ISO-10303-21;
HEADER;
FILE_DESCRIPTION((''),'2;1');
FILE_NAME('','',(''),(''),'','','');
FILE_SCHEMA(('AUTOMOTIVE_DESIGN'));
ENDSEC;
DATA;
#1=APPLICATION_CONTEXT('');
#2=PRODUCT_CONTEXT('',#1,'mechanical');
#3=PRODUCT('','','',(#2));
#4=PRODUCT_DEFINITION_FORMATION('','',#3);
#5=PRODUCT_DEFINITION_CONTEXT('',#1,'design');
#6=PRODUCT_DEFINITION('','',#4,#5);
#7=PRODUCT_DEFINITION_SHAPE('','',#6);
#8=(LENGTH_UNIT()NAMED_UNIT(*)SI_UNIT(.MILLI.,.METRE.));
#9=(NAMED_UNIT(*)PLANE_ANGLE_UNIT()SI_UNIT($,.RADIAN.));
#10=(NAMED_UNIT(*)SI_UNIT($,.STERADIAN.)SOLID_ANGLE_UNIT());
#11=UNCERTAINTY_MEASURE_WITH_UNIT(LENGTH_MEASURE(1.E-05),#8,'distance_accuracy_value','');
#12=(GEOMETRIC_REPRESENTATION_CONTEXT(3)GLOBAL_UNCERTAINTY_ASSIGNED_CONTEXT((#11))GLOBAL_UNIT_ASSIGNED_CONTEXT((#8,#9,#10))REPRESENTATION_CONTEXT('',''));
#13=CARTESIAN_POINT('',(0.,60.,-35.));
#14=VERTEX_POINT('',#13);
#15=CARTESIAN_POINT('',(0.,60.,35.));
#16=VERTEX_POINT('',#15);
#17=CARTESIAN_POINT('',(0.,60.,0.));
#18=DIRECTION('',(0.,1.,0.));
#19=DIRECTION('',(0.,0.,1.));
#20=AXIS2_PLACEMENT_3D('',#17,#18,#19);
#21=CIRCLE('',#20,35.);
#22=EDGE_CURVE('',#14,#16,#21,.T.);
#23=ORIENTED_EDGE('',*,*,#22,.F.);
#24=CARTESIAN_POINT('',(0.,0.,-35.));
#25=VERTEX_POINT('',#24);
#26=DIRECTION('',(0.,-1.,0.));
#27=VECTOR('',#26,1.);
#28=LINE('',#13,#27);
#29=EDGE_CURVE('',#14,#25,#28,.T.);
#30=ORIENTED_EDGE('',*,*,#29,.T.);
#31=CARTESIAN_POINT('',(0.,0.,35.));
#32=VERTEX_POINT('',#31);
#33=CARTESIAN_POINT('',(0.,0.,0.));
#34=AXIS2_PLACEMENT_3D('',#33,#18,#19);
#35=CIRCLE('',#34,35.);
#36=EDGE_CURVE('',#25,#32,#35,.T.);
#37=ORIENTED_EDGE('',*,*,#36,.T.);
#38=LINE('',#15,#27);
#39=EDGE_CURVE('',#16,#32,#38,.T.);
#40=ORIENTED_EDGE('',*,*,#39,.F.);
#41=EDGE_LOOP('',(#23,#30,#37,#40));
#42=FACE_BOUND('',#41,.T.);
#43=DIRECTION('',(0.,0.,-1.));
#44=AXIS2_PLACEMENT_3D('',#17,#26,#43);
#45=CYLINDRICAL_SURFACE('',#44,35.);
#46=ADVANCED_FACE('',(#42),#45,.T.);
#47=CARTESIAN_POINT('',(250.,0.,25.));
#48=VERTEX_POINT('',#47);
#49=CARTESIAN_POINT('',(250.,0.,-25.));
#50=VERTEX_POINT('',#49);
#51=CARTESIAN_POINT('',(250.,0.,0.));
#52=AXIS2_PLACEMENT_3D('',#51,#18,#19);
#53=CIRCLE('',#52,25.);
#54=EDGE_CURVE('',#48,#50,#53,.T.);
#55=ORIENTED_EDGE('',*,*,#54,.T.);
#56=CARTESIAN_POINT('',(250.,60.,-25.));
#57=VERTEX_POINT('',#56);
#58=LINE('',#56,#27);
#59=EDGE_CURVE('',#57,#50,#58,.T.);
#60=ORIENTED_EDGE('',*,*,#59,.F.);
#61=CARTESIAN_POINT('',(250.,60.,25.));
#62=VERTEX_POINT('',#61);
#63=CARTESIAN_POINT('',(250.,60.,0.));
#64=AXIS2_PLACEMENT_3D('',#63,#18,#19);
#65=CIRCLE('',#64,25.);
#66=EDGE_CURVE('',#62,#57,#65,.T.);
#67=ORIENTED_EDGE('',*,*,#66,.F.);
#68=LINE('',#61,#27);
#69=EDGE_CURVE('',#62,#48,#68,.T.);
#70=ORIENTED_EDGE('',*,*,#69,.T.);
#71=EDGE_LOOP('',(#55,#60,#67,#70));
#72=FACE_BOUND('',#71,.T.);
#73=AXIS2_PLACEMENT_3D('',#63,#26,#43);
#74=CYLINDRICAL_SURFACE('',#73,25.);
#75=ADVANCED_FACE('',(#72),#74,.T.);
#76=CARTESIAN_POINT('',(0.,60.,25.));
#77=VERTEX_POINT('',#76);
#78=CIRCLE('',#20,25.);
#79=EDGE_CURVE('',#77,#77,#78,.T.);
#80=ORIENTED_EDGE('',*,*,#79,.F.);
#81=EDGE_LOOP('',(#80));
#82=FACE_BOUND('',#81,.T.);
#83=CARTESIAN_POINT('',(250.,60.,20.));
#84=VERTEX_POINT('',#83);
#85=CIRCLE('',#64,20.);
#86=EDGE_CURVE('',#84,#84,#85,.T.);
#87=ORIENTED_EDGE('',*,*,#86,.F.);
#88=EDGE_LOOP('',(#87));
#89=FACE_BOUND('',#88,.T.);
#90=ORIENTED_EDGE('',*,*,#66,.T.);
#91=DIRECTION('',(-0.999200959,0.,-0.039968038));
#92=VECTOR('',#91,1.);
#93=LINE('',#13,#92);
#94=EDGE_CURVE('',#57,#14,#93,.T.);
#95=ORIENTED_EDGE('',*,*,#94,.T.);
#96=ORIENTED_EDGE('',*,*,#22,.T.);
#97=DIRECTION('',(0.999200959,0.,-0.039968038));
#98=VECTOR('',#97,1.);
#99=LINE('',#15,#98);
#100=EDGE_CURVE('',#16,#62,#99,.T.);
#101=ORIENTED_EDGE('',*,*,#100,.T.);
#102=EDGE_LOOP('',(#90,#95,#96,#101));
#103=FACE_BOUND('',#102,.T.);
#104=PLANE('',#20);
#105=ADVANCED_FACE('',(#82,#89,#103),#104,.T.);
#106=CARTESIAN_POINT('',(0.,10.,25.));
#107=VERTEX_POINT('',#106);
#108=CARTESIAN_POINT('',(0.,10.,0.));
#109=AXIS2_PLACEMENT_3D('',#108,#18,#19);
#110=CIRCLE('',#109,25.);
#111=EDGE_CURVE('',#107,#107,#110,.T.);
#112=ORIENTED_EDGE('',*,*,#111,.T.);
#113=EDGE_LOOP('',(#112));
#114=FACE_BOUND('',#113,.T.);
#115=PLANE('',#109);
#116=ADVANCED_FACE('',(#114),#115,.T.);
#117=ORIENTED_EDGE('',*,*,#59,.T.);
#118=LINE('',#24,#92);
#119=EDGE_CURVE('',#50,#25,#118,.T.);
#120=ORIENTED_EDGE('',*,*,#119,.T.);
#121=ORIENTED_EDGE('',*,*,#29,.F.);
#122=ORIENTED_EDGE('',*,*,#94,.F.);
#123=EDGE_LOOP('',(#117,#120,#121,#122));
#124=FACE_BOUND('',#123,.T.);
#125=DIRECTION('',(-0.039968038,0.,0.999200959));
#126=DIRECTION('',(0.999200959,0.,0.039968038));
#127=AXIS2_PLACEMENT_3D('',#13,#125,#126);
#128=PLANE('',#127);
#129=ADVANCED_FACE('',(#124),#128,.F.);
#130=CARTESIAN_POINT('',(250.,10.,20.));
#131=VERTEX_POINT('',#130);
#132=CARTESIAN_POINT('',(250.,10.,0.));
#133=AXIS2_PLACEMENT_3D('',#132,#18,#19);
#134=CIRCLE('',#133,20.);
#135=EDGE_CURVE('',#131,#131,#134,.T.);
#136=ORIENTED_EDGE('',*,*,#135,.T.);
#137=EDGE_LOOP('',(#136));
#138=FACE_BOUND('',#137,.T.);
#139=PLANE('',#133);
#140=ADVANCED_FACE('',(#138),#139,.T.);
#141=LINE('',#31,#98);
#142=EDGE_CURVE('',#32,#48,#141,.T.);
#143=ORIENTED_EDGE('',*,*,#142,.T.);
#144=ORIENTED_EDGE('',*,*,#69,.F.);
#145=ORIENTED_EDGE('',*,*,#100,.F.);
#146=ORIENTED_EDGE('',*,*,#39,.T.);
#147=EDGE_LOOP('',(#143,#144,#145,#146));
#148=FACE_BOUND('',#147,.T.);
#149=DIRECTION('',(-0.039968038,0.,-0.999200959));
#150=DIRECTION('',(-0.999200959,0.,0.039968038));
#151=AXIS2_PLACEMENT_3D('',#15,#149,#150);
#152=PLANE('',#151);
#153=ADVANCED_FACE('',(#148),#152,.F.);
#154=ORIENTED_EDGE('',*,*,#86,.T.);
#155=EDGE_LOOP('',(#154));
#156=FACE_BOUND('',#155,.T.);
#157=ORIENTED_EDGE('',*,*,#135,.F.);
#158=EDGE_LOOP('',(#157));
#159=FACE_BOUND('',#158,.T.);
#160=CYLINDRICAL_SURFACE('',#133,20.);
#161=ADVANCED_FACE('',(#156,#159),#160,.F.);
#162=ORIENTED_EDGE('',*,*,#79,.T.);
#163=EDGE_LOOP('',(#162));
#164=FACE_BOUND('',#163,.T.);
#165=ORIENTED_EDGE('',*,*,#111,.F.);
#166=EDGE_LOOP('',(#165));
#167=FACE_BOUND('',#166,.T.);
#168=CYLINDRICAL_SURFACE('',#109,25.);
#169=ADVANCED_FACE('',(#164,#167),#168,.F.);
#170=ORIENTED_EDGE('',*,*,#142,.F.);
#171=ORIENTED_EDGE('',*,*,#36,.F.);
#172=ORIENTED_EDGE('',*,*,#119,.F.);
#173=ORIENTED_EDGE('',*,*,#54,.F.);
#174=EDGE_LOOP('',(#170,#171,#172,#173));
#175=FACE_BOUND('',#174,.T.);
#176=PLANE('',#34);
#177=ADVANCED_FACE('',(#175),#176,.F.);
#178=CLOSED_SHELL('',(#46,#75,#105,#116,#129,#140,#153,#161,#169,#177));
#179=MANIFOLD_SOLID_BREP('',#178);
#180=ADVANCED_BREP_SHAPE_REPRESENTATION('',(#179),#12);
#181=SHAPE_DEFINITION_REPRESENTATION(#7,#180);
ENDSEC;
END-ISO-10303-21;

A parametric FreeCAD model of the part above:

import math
import FreeCAD as App
import Part
import Sketcher

V = App.Vector

doc = App.newDocument("Part")
body = doc.addObject("PartDesign::Body", "Body")

sketch1 = body.newObject("Sketcher::SketchObject", "Sketch")
sketch1.AttachmentSupport = (doc.getObject("XZ_Plane"), [""])
sketch1.MapMode = "FlatFace"
sketch1.addGeometry(Part.LineSegment(V(250, -25, 0), V(0, -35, 0)), False)
sketch1.addGeometry(Part.ArcOfCircle(Part.Circle(V(0, 0, 0), V(0, 0, 1), 35), math.radians(90), math.radians(270)), False)
sketch1.addGeometry(Part.LineSegment(V(0, 35, 0), V(250, 25, 0)), False)
sketch1.addGeometry(Part.ArcOfCircle(Part.Circle(V(250, 0, 0), V(0, 0, 1), 25), math.radians(-90), math.radians(90)), False)
sketch1.addConstraint(Sketcher.Constraint("Coincident", 0, 2, 1, 2))
sketch1.addConstraint(Sketcher.Constraint("Coincident", 1, 1, 2, 1))
sketch1.addConstraint(Sketcher.Constraint("Coincident", 2, 2, 3, 2))
sketch1.addConstraint(Sketcher.Constraint("Coincident", 3, 1, 0, 1))
sketch1.addConstraint(Sketcher.Constraint("Coincident", 1, 3, -1, 1))
sketch1.addConstraint(Sketcher.Constraint("Symmetric", 2, 2, 3, 1, -1))
sketch1.addConstraint(Sketcher.Constraint("PointOnObject", 0, 2, -2))
sketch1.addConstraint(Sketcher.Constraint("PointOnObject", 1, 1, -2))
sketch1.addConstraint(Sketcher.Constraint("Vertical", 3, 3, 2, 2))
sketch1.addConstraint(Sketcher.Constraint("Radius", 1, 35.0))
sketch1.addConstraint(Sketcher.Constraint("Radius", 3, 25.0))
sketch1.addConstraint(Sketcher.Constraint("DistanceX", -1, 1, 3, 3, 250.0))
pad1 = body.newObject("PartDesign::Pad", "Pad")
pad1.Profile = sketch1
pad1.Length = 60
pad1.Reversed = True

sketch2 = body.newObject("Sketcher::SketchObject", "Sketch001")
sketch2.AttachmentSupport = (doc.getObject("XZ_Plane"), [""])
sketch2.MapMode = "FlatFace"
sketch2.AttachmentOffset = App.Placement(V(0, 0, -60), App.Rotation())
sketch2.addGeometry(Part.Circle(V(0, 0, 0), V(0, 0, 1), 25), False)
sketch2.addGeometry(Part.Circle(V(250, 0, 0), V(0, 0, 1), 20), False)
sketch2.addConstraint(Sketcher.Constraint("Coincident", 0, 3, -1, 1))
sketch2.addConstraint(Sketcher.Constraint("PointOnObject", 1, 3, -1))
sketch2.addConstraint(Sketcher.Constraint("Diameter", 0, 50.0))
sketch2.addConstraint(Sketcher.Constraint("Diameter", 1, 40.0))
sketch2.addConstraint(Sketcher.Constraint("DistanceX", -1, 1, 1, 3, 250.0))
pocket1 = body.newObject("PartDesign::Pocket", "Pocket")
pocket1.Profile = sketch2
pocket1.Length = 50
pocket1.Reversed = True

doc.recompute()
